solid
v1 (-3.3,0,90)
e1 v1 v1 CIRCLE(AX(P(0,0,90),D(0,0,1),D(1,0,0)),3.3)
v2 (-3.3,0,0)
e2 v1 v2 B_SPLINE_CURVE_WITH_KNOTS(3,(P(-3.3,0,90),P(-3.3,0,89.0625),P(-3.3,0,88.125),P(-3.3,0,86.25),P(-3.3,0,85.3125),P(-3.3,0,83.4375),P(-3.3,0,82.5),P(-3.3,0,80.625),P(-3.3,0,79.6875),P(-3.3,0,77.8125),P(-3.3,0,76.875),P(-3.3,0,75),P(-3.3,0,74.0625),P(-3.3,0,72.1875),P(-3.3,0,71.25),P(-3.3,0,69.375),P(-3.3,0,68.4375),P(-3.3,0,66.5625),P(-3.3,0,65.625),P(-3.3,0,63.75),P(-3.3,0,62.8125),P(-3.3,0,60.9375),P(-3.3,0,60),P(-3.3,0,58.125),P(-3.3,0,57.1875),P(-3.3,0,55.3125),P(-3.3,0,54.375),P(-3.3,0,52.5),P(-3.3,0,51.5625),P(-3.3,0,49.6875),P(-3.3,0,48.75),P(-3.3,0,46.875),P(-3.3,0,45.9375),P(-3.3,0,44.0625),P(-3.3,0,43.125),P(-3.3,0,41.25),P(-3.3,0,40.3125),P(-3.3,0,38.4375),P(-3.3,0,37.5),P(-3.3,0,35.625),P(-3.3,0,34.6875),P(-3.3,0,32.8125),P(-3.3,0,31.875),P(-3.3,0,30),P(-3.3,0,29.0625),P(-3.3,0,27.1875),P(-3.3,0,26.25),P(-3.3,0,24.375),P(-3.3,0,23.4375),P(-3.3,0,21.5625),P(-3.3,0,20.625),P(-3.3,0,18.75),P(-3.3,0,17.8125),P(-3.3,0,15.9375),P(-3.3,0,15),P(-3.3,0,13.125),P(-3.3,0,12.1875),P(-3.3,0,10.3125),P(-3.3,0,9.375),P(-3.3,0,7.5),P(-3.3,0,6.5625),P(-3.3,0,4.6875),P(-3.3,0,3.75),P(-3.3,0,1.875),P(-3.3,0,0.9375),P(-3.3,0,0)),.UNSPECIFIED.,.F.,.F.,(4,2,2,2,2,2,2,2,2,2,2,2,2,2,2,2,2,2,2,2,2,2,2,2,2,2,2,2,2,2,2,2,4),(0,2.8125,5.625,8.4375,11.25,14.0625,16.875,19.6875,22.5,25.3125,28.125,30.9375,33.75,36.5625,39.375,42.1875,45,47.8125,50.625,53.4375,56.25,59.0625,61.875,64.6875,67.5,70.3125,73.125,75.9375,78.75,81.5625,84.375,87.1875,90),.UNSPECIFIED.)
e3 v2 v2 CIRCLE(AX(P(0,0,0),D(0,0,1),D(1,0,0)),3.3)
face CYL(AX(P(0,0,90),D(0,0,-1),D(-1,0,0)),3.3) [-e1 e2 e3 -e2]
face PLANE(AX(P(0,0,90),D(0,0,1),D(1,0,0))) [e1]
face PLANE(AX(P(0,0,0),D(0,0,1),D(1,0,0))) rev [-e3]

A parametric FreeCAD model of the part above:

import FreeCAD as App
import Part
import Sketcher

doc = App.newDocument("Part")
body = doc.addObject("PartDesign::Body", "Body")

# Sketch on XY plane
sketch1 = body.newObject("Sketcher::SketchObject", "Sketch")
sketch1.AttachmentSupport = (doc.getObject("XY_Plane"), [""])
sketch1.MapMode = "FlatFace"
sketch1.addGeometry(Part.Circle(App.Vector(0, 0, 0), App.Vector(0, 0, 1), 3.3), False)
sketch1.addConstraint(Sketcher.Constraint("Coincident", 0, 3, -1, 1))
sketch1.addConstraint(Sketcher.Constraint("Diameter", 0, 6.6))
pad1 = body.newObject("PartDesign::Pad", "Pad")
pad1.Profile = sketch1
pad1.Length = 90

doc.recompute()
